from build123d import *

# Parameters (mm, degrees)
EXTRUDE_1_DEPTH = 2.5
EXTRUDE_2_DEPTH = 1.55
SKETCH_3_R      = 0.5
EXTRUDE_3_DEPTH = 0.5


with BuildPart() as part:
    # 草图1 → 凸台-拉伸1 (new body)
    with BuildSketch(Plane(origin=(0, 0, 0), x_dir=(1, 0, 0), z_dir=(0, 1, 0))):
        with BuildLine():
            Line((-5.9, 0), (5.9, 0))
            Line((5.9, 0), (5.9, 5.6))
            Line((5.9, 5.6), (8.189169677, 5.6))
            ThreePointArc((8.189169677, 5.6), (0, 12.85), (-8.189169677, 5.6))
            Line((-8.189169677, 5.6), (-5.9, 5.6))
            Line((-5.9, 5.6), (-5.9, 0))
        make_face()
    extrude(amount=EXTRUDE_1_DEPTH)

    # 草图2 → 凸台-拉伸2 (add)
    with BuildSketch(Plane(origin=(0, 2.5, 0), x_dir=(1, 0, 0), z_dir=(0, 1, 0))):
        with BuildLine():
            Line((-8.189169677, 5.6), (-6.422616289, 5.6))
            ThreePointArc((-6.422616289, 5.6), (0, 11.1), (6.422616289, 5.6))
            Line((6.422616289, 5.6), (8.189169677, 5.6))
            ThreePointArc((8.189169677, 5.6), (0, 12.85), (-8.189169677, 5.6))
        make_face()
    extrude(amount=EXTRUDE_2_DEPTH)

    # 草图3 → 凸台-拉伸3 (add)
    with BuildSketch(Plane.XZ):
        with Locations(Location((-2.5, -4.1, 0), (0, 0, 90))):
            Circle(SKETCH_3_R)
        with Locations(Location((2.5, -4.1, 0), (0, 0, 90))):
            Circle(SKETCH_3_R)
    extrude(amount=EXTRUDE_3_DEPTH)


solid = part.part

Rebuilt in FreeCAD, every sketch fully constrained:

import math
import FreeCAD as App
import Part
import Sketcher

V = App.Vector
Q = App.Units.Quantity

doc = App.newDocument("Part")
body = doc.addObject("PartDesign::Body", "Body")

# Sketch on XZ plane
sketch1 = body.newObject("Sketcher::SketchObject", "Sketch")
sketch1.AttachmentSupport = (doc.getObject("XZ_Plane"), [""])
sketch1.MapMode = "FlatFace"
sketch1.addGeometry(Part.LineSegment(V(-5.9, 0, 0), V(5.9, 0, 0)), False)
sketch1.addGeometry(Part.LineSegment(V(5.9, 0, 0), V(5.9, -5.6, 0)), False)
sketch1.addGeometry(Part.LineSegment(V(5.9, -5.6, 0), V(8.2, -5.6, 0)), False)
sketch1.addGeometry(Part.ArcOfCircle(Part.Circle(V(0, -4.6, 0), V(0, 0, 1), 8.2), math.radians(-173), math.radians(-7)), False)
sketch1.addGeometry(Part.LineSegment(V(-8.2, -5.6, 0), V(-5.9, -5.6, 0)), False)
sketch1.addGeometry(Part.LineSegment(V(-5.9, -5.6, 0), V(-5.9, 0, 0)), False)
sketch1.addConstraint(Sketcher.Constraint("Coincident", 0, 2, 1, 1))
sketch1.addConstraint(Sketcher.Constraint("Coincident", 1, 2, 2, 1))
sketch1.addConstraint(Sketcher.Constraint("Coincident", 2, 2, 3, 2))
sketch1.addConstraint(Sketcher.Constraint("Coincident", 3, 1, 4, 1))
sketch1.addConstraint(Sketcher.Constraint("Coincident", 4, 2, 5, 1))
sketch1.addConstraint(Sketcher.Constraint("Coincident", 5, 2, 0, 1))
sketch1.addConstraint(Sketcher.Constraint("Horizontal", 0))
sketch1.addConstraint(Sketcher.Constraint("Vertical", 1))
sketch1.addConstraint(Sketcher.Constraint("Horizontal", 2))
sketch1.addConstraint(Sketcher.Constraint("Horizontal", 4))
sketch1.addConstraint(Sketcher.Constraint("Vertical", 5))
sketch1.addConstraint(Sketcher.Constraint("Symmetric", 0, 2, 5, 2, -1, 1))
sketch1.addConstraint(Sketcher.Constraint("Symmetric", 2, 2, 3, 1, -2))
sketch1.addConstraint(Sketcher.Constraint("Radius", 3, Q("8.25 mm")))
sketch1.addConstraint(Sketcher.Constraint("DistanceX", 0, 1, 0, 2, Q("11.8 mm")))
sketch1.addConstraint(Sketcher.Constraint("DistanceY", 1, 2, 1, 1, Q("5.6 mm")))
sketch1.addConstraint(Sketcher.Constraint("DistanceY", 1, 2, 3, 3, Q("1 mm")))
pad1 = body.newObject("PartDesign::Pad", "Pad")
pad1.Profile = sketch1
pad1.Length = 2.5
pad1.Reversed = True

# Sketch on XZ plane
sketch2 = body.newObject("Sketcher::SketchObject", "Sketch001")
sketch2.AttachmentSupport = (doc.getObject("XZ_Plane"), [""])
sketch2.MapMode = "FlatFace"
sketch2.AttachmentOffset = App.Placement(V(0, 0, -2.5), App.Rotation())
sketch2.addGeometry(Part.LineSegment(V(-8.2, -5.6, 0), V(-6.4, -5.6, 0)), False)
sketch2.addGeometry(Part.ArcOfCircle(Part.Circle(V(0, -4.6, 0), V(0, 0, 1), 6.5), math.radians(-171), math.radians(-9)), False)
sketch2.addGeometry(Part.LineSegment(V(6.4, -5.6, 0), V(8.2, -5.6, 0)), False)
sketch2.addGeometry(Part.ArcOfCircle(Part.Circle(V(0, -4.6, 0), V(0, 0, 1), 8.2), math.radians(-173), math.radians(-7)), False)
sketch2.addConstraint(Sketcher.Constraint("Coincident", 0, 2, 1, 1))
sketch2.addConstraint(Sketcher.Constraint("Coincident", 1, 2, 2, 1))
sketch2.addConstraint(Sketcher.Constraint("Coincident", 2, 2, 3, 2))
sketch2.addConstraint(Sketcher.Constraint("Coincident", 3, 1, 0, 1))
sketch2.addConstraint(Sketcher.Constraint("Horizontal", 0))
sketch2.addConstraint(Sketcher.Constraint("Horizontal", 2))
sketch2.addConstraint(Sketcher.Constraint("Coincident", 3, 3, 1, 3))
sketch2.addConstraint(Sketcher.Constraint("Symmetric", 0, 2, 1, 2, -2))
sketch2.addConstraint(Sketcher.Constraint("Radius", 1, Q("6.5 mm")))
sketch2.addConstraint(Sketcher.Constraint("Radius", 3, Q("8.25 mm")))
sketch2.addConstraint(Sketcher.Constraint("DistanceY", 0, 2, 1, 3, Q("1 mm")))
sketch2.addConstraint(Sketcher.Constraint("DistanceY", 1, 3, -1, 1, Q("4.6 mm")))
pad2 = body.newObject("PartDesign::Pad", "Pad001")
pad2.Profile = sketch2
pad2.Length = 1.55
pad2.Reversed = True

# Sketch on XZ plane
sketch3 = body.newObject("Sketcher::SketchObject", "Sketch002")
sketch3.AttachmentSupport = (doc.getObject("XZ_Plane"), [""])
sketch3.MapMode = "FlatFace"
sketch3.addGeometry(Part.Circle(V(-2.5, -4.1, 0), V(0, 0, 1), 0.5), False)
sketch3.addGeometry(Part.Circle(V(2.5, -4.1, 0), V(0, 0, 1), 0.5), False)
sketch3.addConstraint(Sketcher.Constraint("Equal", 0, 1))
sketch3.addConstraint(Sketcher.Constraint("Symmetric", 0, 3, 1, 3, -2))
sketch3.addConstraint(Sketcher.Constraint("Diameter", 0, Q("1 mm")))
sketch3.addConstraint(Sketcher.Constraint("DistanceX", 0, 3, 1, 3, Q("5 mm")))
sketch3.addConstraint(Sketcher.Constraint("DistanceY", 0, 3, -1, 1, Q("4.1 mm")))
pad3 = body.newObject("PartDesign::Pad", "Pad002")
pad3.Profile = sketch3
pad3.Length = 0.5

doc.recompute()
